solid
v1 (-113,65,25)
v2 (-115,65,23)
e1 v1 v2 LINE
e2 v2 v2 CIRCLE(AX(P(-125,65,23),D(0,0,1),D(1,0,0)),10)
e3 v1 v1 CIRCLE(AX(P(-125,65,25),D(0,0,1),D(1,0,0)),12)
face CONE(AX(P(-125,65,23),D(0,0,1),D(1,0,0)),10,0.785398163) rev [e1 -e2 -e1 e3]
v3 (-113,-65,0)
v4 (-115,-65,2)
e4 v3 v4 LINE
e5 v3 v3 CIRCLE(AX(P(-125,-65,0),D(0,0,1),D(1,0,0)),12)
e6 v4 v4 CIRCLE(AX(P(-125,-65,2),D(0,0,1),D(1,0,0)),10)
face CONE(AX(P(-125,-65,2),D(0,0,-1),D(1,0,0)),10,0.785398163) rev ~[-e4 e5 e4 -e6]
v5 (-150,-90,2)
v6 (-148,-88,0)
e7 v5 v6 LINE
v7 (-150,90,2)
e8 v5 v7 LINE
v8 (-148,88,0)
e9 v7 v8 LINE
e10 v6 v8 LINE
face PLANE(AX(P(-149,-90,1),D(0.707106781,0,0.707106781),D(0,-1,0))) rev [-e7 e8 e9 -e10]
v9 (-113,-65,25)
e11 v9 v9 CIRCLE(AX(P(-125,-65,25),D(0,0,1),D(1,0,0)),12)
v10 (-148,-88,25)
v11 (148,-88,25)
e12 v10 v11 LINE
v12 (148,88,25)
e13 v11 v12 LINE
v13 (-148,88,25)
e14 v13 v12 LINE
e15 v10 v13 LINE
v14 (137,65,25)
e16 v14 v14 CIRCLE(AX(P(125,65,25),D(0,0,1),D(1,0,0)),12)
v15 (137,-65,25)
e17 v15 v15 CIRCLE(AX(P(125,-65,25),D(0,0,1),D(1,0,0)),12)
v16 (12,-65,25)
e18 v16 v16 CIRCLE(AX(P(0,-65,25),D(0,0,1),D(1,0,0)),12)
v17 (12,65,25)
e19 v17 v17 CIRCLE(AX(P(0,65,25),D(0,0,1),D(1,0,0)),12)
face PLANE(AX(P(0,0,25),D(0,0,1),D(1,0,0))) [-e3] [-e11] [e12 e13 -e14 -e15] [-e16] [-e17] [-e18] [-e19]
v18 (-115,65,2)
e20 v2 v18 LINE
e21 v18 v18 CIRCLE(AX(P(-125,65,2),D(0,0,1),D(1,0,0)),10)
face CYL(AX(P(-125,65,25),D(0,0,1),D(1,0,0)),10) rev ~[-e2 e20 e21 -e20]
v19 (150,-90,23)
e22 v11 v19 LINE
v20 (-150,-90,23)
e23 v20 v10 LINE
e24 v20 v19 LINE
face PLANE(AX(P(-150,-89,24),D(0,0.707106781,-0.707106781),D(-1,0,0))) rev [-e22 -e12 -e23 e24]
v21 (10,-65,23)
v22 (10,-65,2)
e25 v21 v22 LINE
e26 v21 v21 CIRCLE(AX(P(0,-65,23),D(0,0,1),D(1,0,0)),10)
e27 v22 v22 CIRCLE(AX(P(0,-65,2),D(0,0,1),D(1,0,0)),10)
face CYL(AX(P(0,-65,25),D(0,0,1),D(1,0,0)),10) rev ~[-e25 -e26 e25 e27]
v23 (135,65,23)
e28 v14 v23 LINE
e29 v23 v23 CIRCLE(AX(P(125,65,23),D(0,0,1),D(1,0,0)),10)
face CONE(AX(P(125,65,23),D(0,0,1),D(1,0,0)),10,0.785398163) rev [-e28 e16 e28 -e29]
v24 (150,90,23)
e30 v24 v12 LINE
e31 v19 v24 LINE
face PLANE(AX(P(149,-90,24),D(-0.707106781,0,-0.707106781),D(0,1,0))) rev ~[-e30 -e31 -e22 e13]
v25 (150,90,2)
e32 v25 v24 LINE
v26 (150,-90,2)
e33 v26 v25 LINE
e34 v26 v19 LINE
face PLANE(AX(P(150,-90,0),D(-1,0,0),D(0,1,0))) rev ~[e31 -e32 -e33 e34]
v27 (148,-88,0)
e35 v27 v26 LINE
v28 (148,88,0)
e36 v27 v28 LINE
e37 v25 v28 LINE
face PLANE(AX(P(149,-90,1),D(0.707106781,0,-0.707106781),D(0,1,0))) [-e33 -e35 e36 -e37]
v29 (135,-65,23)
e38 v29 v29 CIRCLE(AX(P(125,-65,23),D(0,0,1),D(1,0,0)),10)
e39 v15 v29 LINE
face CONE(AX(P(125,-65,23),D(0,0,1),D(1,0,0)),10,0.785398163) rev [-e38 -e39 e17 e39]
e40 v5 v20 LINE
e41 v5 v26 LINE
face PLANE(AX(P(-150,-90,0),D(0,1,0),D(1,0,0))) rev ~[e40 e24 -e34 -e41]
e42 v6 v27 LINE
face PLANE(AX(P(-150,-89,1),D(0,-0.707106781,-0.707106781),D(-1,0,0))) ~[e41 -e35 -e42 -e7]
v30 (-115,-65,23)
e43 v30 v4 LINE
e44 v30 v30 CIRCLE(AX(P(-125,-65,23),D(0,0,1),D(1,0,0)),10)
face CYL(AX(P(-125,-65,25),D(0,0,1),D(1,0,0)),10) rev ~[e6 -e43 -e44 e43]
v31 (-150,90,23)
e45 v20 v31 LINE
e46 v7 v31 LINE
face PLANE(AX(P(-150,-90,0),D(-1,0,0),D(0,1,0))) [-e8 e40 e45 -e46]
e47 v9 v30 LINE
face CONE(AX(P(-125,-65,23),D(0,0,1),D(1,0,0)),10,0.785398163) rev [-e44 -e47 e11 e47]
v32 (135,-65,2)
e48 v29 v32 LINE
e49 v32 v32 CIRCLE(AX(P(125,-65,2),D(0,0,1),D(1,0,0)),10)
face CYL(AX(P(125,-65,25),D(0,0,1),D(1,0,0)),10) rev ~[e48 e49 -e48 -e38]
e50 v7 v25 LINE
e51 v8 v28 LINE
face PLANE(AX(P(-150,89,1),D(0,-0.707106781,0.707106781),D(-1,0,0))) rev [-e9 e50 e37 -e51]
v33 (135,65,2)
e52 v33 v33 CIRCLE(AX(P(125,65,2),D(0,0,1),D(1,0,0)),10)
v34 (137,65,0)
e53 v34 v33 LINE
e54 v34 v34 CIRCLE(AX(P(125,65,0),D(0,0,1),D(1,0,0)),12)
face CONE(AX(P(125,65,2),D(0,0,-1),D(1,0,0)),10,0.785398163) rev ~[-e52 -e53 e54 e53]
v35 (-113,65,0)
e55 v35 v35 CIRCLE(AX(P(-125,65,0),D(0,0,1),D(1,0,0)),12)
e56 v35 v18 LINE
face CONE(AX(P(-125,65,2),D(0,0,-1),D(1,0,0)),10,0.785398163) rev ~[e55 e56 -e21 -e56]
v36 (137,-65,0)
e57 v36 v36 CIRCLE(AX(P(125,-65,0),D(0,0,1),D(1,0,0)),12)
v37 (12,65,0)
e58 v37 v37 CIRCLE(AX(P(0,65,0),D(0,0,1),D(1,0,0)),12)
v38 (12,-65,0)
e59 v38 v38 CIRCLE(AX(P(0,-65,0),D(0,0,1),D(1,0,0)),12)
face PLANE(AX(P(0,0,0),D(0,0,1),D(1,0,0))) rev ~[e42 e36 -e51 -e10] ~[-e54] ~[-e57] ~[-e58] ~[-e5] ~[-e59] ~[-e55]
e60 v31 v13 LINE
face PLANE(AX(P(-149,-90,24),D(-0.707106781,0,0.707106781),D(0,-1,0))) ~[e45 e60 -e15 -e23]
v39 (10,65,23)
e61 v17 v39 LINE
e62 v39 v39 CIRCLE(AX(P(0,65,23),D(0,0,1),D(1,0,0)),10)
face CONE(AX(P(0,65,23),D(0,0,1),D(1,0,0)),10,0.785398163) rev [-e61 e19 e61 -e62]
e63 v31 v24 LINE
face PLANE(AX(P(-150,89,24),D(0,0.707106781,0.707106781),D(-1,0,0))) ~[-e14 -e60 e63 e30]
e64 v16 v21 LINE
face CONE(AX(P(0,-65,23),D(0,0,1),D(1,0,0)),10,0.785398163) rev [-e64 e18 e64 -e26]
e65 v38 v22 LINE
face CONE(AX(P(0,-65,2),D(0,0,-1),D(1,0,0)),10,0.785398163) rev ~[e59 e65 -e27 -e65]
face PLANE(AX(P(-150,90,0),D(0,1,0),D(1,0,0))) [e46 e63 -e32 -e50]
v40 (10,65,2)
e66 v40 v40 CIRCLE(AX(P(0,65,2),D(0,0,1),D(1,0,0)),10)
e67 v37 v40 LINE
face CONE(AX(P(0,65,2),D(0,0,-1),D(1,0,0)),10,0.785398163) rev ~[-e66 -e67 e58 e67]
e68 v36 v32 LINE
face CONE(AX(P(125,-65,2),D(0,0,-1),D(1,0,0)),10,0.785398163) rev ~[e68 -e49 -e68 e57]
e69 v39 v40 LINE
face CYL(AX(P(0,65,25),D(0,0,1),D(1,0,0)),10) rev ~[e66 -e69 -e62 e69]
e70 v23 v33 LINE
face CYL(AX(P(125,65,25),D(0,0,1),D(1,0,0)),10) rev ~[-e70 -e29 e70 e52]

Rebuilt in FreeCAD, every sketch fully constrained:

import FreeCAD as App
import Part
import Sketcher


def edges_at(feature, points):
    """Names of the edges that pass closest to the given points."""
    edges = feature.Shape.Edges
    near = lambda p: min(range(len(edges)), key=lambda i: edges[i].distToShape(Part.Vertex(*p))[0])
    return sorted({f"Edge{near(p) + 1}" for p in points})


def add_polygon(sketch, points):
    """Adds a closed chain of lines whose ends are joined by coincident constraints."""
    first, n = sketch.GeometryCount, len(points)
    for a, b in zip(points, points[1:] + points[:1]):
        sketch.addGeometry(Part.LineSegment(App.Vector(*a, 0), App.Vector(*b, 0)), False)
    for i in range(n):
        sketch.addConstraint(Sketcher.Constraint("Coincident", first + i, 2, first + (i + 1) % n, 1))

doc = App.newDocument("Part")
body = doc.addObject("PartDesign::Body", "Body")

# Sketch on XY plane
sketch1 = body.newObject("Sketcher::SketchObject", "Sketch")
sketch1.AttachmentSupport = (doc.getObject("XY_Plane"), [""])
sketch1.MapMode = "FlatFace"
add_polygon(sketch1, [(-150, 90), (-150, -90), (150, -90), (150, 90)])  # lines 0-3
sketch1.addConstraint([
    Sketcher.Constraint("Vertical", 0),
    Sketcher.Constraint("Horizontal", 1),
    Sketcher.Constraint("Vertical", 2),
    Sketcher.Constraint("Horizontal", 3),
    Sketcher.Constraint("Symmetric", 0, 2, 2, 2, -1, 1),
    Sketcher.Constraint("DistanceX", 1, 1, 1, 2, 300.0),
    Sketcher.Constraint("DistanceY", 0, 2, 0, 1, 180.0),
])
pad1 = body.newObject("PartDesign::Pad", "Pad")
pad1.Profile = sketch1
pad1.Length = 25

# Sketch on XY plane
sketch2 = body.newObject("Sketcher::SketchObject", "Sketch001")
sketch2.AttachmentSupport = (doc.getObject("XY_Plane"), [""])
sketch2.MapMode = "FlatFace"
sketch2.AttachmentOffset = App.Placement(App.Vector(0, 0, 25), App.Rotation())
sketch2.addGeometry([
    Part.Circle(App.Vector(-125, 65, 0), App.Vector(0, 0, 1), 10),  # 0
    Part.Circle(App.Vector(0, 65, 0), App.Vector(0, 0, 1), 10),  # 1
    Part.Circle(App.Vector(125, 65, 0), App.Vector(0, 0, 1), 10),  # 2
    Part.Circle(App.Vector(125, -65, 0), App.Vector(0, 0, 1), 10),  # 3
    Part.Circle(App.Vector(0, -65, 0), App.Vector(0, 0, 1), 10),  # 4
    Part.Circle(App.Vector(-125, -65, 0), App.Vector(0, 0, 1), 10),  # 5
], False)
sketch2.addConstraint([
    Sketcher.Constraint("Equal", 0, 1),
    Sketcher.Constraint("Equal", 1, 2),
    Sketcher.Constraint("Equal", 2, 3),
    Sketcher.Constraint("Equal", 3, 4),
    Sketcher.Constraint("Equal", 4, 5),
    Sketcher.Constraint("Symmetric", 0, 3, 3, 3, -1, 1),
    Sketcher.Constraint("Symmetric", 1, 3, 4, 3, -1, 1),
    Sketcher.Constraint("Symmetric", 2, 3, 5, 3, -1, 1),
    Sketcher.Constraint("Symmetric", 0, 3, 2, 3, -2),
    Sketcher.Constraint("PointOnObject", 1, 3, -2),
    Sketcher.Constraint("Horizontal", 0, 3, 1, 3),
    Sketcher.Constraint("Diameter", 0, 20.0),
    Sketcher.Constraint("DistanceX", 0, 3, -1, 1, 125.0),
    Sketcher.Constraint("DistanceY", -1, 1, 0, 3, 65.0),
])
pocket1 = body.newObject("PartDesign::Pocket", "Pocket")
pocket1.Profile = sketch2
pocket1.Type = "ThroughAll"
doc.recompute()

chamfer = body.newObject("PartDesign::Chamfer", "Chamfer")
chamfer.Base = (pocket1, edges_at(pocket1, [
    (0, 90, 25),
    (150, 0, 25),
    (-150, 0, 25),
    (0, -90, 25),
    (-135, -65, 25),
    (-10, -65, 25),
    (115, -65, 25),
    (-135, 65, 25),
    (-10, 65, 25),
    (115, 65, 25),
    (0, 90, 0),
    (150, 0, 0),
    (-150, 0, 0),
    (0, -90, 0),
    (-135, -65, 0),
    (-10, -65, 0),
    (115, -65, 0),
    (-135, 65, 0),
    (-10, 65, 0),
    (115, 65, 0),
]))
chamfer.ChamferType = "Two distances"
chamfer.Size = 2
chamfer.Size2 = 2

doc.recompute()
